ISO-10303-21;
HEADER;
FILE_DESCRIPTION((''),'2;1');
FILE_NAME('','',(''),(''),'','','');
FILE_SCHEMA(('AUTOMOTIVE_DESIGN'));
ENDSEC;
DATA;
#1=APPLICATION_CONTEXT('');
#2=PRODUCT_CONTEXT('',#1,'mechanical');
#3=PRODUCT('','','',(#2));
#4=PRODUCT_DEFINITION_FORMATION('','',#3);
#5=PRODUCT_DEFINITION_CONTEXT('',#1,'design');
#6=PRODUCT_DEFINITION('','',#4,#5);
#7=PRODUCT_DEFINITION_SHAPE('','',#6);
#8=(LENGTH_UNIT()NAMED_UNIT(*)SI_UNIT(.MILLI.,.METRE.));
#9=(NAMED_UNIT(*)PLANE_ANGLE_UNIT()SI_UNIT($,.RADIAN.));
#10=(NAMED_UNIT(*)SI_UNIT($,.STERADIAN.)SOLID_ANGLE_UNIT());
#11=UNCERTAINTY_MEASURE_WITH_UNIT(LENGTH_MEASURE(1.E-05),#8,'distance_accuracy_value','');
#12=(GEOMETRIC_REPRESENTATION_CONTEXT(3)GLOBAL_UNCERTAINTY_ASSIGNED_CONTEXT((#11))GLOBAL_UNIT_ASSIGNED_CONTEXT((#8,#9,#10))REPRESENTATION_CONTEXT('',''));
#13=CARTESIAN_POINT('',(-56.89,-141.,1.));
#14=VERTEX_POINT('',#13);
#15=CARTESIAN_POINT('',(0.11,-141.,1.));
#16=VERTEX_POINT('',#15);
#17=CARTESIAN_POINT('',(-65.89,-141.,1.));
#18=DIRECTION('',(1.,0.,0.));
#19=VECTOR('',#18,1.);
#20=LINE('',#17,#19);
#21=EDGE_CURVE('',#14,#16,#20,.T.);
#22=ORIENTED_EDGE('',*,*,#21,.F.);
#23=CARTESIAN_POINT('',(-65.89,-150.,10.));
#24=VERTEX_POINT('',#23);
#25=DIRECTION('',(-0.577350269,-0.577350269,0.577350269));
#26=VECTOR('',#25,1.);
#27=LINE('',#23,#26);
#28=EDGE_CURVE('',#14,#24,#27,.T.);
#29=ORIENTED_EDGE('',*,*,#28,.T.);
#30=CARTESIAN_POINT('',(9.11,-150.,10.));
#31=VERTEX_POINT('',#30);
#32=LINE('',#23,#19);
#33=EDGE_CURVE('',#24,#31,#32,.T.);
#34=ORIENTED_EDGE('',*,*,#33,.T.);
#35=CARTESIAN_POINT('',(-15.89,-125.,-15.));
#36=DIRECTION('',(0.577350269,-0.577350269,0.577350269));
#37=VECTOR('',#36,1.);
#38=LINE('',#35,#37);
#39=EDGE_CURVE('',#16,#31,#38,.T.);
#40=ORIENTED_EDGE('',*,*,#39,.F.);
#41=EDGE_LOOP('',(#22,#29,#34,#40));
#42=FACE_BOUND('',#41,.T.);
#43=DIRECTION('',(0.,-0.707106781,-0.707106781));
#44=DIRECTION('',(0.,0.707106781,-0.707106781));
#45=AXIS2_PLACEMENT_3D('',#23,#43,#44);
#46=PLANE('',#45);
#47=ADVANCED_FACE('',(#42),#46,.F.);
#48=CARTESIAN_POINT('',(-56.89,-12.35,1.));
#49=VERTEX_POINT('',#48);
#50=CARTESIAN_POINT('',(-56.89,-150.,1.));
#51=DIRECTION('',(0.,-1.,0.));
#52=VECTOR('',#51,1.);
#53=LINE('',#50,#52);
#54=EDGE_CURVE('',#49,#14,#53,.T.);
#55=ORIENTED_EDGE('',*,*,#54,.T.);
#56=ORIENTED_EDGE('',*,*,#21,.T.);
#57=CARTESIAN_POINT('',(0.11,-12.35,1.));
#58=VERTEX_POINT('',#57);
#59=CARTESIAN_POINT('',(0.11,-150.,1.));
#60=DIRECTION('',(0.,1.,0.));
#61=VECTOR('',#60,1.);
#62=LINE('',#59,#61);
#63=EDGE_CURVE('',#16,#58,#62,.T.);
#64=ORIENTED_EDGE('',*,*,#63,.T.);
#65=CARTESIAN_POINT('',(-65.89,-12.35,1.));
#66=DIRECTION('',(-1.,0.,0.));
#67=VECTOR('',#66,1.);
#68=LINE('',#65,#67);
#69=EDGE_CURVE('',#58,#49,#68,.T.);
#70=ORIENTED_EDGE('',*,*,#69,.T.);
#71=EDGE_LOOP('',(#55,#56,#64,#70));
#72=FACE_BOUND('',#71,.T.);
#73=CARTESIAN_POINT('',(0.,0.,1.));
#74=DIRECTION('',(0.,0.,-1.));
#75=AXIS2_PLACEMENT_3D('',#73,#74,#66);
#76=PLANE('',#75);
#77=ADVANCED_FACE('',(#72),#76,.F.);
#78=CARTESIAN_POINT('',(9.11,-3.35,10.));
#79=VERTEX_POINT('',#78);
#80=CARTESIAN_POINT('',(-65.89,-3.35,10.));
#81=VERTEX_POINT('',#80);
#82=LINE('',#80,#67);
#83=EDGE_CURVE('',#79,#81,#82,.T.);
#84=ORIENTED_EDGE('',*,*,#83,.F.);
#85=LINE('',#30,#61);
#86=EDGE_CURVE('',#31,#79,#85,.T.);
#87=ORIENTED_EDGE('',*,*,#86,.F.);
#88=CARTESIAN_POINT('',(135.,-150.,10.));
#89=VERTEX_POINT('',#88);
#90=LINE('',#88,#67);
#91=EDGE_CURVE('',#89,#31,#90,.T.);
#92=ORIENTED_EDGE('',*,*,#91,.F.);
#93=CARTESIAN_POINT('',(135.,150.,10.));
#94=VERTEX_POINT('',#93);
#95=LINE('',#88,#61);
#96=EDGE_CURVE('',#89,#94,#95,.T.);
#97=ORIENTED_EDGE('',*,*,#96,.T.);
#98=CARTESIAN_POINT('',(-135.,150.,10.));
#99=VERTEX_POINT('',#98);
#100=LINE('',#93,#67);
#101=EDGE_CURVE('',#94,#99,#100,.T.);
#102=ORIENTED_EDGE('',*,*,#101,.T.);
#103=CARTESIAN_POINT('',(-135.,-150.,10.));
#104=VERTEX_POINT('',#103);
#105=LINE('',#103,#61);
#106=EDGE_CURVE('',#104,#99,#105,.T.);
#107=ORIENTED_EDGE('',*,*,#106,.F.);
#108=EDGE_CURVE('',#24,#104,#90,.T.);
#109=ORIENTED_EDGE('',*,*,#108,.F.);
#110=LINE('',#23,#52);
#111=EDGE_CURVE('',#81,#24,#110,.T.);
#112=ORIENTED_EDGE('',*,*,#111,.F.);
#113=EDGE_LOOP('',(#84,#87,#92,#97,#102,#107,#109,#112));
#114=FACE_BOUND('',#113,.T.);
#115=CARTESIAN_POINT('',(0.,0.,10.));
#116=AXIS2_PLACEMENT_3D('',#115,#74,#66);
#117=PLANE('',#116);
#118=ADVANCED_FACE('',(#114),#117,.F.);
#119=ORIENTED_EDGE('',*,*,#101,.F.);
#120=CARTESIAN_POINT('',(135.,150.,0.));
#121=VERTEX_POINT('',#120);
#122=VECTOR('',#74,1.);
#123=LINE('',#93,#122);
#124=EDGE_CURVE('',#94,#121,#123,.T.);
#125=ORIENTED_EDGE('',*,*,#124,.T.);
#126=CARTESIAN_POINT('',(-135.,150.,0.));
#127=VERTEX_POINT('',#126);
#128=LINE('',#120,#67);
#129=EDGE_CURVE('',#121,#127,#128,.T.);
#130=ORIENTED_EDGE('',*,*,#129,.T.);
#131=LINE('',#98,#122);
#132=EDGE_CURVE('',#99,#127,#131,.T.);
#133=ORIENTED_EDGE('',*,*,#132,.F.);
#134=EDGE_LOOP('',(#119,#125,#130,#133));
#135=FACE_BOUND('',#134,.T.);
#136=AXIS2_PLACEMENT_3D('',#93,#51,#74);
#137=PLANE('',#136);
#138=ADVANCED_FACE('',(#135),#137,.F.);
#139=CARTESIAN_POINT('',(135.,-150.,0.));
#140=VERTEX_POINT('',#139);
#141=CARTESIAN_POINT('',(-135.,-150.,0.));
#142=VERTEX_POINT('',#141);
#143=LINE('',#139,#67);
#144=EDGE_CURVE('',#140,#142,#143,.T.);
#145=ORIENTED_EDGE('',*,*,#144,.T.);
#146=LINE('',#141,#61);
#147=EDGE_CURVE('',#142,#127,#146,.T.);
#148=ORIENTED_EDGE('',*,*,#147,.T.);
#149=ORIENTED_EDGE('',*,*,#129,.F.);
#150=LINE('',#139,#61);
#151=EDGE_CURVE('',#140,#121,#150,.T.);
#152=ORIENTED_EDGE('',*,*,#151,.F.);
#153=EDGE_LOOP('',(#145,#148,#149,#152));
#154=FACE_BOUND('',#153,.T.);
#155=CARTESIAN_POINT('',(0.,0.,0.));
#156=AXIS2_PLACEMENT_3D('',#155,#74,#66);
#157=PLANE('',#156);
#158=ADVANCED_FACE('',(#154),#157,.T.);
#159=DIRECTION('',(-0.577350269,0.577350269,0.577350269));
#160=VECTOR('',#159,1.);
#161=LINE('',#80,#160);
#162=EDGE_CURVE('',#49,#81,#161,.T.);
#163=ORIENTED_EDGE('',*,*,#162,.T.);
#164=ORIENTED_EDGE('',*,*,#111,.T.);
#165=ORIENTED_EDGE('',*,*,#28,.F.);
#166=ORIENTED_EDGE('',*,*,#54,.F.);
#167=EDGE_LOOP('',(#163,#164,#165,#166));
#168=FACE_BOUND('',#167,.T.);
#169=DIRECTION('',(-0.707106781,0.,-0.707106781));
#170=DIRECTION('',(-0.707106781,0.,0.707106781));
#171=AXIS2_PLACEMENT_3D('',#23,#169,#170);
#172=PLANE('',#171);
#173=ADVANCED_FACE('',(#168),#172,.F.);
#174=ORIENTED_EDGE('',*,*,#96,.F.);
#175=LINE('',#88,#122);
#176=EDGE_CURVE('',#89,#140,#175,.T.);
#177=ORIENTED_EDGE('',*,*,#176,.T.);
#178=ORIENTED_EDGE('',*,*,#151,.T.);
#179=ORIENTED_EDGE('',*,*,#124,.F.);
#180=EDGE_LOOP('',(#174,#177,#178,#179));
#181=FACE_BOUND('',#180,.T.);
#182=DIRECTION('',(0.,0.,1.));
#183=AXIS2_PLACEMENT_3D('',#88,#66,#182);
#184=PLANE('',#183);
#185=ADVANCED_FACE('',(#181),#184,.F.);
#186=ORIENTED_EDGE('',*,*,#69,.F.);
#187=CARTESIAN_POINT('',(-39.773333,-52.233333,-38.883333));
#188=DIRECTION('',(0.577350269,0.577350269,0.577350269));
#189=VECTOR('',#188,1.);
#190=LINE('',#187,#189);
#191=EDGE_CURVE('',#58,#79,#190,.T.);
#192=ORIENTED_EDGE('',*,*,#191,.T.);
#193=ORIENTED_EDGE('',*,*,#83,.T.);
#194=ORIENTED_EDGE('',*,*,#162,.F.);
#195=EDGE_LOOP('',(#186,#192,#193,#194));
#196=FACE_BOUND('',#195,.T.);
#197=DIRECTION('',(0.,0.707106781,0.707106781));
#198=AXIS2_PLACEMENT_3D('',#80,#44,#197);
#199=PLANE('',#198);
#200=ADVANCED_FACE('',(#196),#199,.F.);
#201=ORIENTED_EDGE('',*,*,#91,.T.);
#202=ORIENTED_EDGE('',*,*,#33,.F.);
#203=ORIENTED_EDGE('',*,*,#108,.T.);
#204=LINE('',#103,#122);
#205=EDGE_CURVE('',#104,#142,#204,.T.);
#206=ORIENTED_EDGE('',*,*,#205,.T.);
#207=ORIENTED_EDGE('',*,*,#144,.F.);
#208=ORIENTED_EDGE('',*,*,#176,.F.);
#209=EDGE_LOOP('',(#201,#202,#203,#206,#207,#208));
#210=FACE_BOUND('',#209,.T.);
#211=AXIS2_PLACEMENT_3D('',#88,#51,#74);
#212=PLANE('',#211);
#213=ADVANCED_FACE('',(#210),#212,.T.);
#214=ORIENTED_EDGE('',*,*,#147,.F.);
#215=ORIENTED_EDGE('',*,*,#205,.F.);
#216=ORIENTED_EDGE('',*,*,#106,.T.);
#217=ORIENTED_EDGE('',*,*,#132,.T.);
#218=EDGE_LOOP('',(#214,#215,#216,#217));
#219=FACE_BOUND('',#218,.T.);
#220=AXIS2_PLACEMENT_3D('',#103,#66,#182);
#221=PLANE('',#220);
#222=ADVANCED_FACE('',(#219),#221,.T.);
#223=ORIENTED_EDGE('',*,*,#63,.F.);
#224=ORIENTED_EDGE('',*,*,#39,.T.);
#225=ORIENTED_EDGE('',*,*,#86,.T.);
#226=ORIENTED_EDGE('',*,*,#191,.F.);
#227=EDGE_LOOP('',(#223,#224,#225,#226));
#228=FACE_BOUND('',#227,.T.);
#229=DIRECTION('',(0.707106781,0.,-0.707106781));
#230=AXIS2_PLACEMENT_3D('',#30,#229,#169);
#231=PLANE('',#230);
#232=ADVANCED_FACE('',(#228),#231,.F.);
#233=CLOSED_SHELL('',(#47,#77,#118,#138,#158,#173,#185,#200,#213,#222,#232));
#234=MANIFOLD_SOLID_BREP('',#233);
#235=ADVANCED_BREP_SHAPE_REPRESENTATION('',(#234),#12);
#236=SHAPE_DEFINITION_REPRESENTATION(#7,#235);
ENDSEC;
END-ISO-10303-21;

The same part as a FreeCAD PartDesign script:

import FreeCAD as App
import Part
import Sketcher


def faces_at(feature, points):
    """Names of the faces that lie closest to the given points."""
    faces = feature.Shape.Faces
    near = lambda p: min(range(len(faces)), key=lambda i: faces[i].distToShape(Part.Vertex(*p))[0])
    return sorted({f"Face{near(p) + 1}" for p in points})


def add_polygon(sketch, points):
    """Adds a closed chain of lines whose ends are joined by coincident constraints."""
    first, n = sketch.GeometryCount, len(points)
    for a, b in zip(points, points[1:] + points[:1]):
        sketch.addGeometry(Part.LineSegment(App.Vector(*a, 0), App.Vector(*b, 0)), False)
    for i in range(n):
        sketch.addConstraint(Sketcher.Constraint("Coincident", first + i, 2, first + (i + 1) % n, 1))

doc = App.newDocument("Part")
body = doc.addObject("PartDesign::Body", "Body")

sketch1 = doc.addObject("Sketcher::SketchObject", "Sketch")
body.addObject(sketch1)
sketch1.AttachmentSupport = (doc.XY_Plane, [""])
sketch1.MapMode = "FlatFace"
add_polygon(sketch1, [(-135, 150), (-135, -150), (135, -150), (135, 150)])
sketch1.addConstraint([
    Sketcher.Constraint("Vertical", 0),
    Sketcher.Constraint("Horizontal", 1),
    Sketcher.Constraint("Vertical", 2),
    Sketcher.Constraint("Horizontal", 3),
    Sketcher.Constraint("Symmetric", 0, 2, 2, 2, -1, 1),
    Sketcher.Constraint("DistanceX", 1, 1, 1, 2, 270.0),
    Sketcher.Constraint("DistanceY", 0, 2, 0, 1, 300.0),
])
pad1 = doc.addObject("PartDesign::Pad", "Pad")
body.addObject(pad1)
pad1.Profile = sketch1
pad1.Length = 10
body2 = doc.addObject("PartDesign::Body", "Body001")

sketch2 = doc.addObject("Sketcher::SketchObject", "Sketch001")
body2.addObject(sketch2)
sketch2.AttachmentSupport = (doc.getObject("XY_Plane001"), [""])
sketch2.MapMode = "FlatFace"
sketch2.AttachmentOffset = App.Placement(App.Vector(0, 0, 10), App.Rotation())
add_polygon(sketch2, [(-65.89, -3.35), (-65.89, -150), (9.11, -150), (9.11, -3.35)])
sketch2.addConstraint([
    Sketcher.Constraint("Vertical", 0),
    Sketcher.Constraint("Horizontal", 1),
    Sketcher.Constraint("Vertical", 2),
    Sketcher.Constraint("Horizontal", 3),
    Sketcher.Constraint("DistanceX", 1, 1, 1, 2, 75.0),
    Sketcher.Constraint("DistanceY", 0, 2, -1, 1, 150.0),
    Sketcher.Constraint("DistanceY", 0, 2, 0, 1, 146.65),
    Sketcher.Constraint("DistanceX", 0, 2, -1, 1, 65.89),
])
pad2 = doc.addObject("PartDesign::Pad", "Pad001")
body2.addObject(pad2)
pad2.Profile = sketch2
pad2.Length = 9
pad2.Reversed = True
doc.recompute()

datumplane = doc.addObject("PartDesign::Plane", "DatumPlane")
body2.addObject(datumplane)
datumplane.AttachmentSupport = (doc.getObject("XY_Plane001"), [""])
datumplane.MapMode = "FlatFace"
datumplane.AttachmentOffset = App.Placement(App.Vector(0, 0, 10), App.Rotation())
draft = doc.addObject("PartDesign::Draft", "Draft")
body2.addObject(draft)
draft.Base = (pad2, faces_at(pad2, [
    (-28.39, -150, 5.5),
    (9.11, -76.675, 5.5),
    (-28.39, -3.35, 5.5),
    (-65.89, -76.675, 5.5),
]))
draft.NeutralPlane = (datumplane, [""])
draft.Angle = 45
draft.Reversed = True
doc.recompute()

boolean = doc.addObject("PartDesign::Boolean", "Boolean")
body.addObject(boolean)
boolean.Type = "Cut"
boolean.addObjects([body2])

doc.recompute()
